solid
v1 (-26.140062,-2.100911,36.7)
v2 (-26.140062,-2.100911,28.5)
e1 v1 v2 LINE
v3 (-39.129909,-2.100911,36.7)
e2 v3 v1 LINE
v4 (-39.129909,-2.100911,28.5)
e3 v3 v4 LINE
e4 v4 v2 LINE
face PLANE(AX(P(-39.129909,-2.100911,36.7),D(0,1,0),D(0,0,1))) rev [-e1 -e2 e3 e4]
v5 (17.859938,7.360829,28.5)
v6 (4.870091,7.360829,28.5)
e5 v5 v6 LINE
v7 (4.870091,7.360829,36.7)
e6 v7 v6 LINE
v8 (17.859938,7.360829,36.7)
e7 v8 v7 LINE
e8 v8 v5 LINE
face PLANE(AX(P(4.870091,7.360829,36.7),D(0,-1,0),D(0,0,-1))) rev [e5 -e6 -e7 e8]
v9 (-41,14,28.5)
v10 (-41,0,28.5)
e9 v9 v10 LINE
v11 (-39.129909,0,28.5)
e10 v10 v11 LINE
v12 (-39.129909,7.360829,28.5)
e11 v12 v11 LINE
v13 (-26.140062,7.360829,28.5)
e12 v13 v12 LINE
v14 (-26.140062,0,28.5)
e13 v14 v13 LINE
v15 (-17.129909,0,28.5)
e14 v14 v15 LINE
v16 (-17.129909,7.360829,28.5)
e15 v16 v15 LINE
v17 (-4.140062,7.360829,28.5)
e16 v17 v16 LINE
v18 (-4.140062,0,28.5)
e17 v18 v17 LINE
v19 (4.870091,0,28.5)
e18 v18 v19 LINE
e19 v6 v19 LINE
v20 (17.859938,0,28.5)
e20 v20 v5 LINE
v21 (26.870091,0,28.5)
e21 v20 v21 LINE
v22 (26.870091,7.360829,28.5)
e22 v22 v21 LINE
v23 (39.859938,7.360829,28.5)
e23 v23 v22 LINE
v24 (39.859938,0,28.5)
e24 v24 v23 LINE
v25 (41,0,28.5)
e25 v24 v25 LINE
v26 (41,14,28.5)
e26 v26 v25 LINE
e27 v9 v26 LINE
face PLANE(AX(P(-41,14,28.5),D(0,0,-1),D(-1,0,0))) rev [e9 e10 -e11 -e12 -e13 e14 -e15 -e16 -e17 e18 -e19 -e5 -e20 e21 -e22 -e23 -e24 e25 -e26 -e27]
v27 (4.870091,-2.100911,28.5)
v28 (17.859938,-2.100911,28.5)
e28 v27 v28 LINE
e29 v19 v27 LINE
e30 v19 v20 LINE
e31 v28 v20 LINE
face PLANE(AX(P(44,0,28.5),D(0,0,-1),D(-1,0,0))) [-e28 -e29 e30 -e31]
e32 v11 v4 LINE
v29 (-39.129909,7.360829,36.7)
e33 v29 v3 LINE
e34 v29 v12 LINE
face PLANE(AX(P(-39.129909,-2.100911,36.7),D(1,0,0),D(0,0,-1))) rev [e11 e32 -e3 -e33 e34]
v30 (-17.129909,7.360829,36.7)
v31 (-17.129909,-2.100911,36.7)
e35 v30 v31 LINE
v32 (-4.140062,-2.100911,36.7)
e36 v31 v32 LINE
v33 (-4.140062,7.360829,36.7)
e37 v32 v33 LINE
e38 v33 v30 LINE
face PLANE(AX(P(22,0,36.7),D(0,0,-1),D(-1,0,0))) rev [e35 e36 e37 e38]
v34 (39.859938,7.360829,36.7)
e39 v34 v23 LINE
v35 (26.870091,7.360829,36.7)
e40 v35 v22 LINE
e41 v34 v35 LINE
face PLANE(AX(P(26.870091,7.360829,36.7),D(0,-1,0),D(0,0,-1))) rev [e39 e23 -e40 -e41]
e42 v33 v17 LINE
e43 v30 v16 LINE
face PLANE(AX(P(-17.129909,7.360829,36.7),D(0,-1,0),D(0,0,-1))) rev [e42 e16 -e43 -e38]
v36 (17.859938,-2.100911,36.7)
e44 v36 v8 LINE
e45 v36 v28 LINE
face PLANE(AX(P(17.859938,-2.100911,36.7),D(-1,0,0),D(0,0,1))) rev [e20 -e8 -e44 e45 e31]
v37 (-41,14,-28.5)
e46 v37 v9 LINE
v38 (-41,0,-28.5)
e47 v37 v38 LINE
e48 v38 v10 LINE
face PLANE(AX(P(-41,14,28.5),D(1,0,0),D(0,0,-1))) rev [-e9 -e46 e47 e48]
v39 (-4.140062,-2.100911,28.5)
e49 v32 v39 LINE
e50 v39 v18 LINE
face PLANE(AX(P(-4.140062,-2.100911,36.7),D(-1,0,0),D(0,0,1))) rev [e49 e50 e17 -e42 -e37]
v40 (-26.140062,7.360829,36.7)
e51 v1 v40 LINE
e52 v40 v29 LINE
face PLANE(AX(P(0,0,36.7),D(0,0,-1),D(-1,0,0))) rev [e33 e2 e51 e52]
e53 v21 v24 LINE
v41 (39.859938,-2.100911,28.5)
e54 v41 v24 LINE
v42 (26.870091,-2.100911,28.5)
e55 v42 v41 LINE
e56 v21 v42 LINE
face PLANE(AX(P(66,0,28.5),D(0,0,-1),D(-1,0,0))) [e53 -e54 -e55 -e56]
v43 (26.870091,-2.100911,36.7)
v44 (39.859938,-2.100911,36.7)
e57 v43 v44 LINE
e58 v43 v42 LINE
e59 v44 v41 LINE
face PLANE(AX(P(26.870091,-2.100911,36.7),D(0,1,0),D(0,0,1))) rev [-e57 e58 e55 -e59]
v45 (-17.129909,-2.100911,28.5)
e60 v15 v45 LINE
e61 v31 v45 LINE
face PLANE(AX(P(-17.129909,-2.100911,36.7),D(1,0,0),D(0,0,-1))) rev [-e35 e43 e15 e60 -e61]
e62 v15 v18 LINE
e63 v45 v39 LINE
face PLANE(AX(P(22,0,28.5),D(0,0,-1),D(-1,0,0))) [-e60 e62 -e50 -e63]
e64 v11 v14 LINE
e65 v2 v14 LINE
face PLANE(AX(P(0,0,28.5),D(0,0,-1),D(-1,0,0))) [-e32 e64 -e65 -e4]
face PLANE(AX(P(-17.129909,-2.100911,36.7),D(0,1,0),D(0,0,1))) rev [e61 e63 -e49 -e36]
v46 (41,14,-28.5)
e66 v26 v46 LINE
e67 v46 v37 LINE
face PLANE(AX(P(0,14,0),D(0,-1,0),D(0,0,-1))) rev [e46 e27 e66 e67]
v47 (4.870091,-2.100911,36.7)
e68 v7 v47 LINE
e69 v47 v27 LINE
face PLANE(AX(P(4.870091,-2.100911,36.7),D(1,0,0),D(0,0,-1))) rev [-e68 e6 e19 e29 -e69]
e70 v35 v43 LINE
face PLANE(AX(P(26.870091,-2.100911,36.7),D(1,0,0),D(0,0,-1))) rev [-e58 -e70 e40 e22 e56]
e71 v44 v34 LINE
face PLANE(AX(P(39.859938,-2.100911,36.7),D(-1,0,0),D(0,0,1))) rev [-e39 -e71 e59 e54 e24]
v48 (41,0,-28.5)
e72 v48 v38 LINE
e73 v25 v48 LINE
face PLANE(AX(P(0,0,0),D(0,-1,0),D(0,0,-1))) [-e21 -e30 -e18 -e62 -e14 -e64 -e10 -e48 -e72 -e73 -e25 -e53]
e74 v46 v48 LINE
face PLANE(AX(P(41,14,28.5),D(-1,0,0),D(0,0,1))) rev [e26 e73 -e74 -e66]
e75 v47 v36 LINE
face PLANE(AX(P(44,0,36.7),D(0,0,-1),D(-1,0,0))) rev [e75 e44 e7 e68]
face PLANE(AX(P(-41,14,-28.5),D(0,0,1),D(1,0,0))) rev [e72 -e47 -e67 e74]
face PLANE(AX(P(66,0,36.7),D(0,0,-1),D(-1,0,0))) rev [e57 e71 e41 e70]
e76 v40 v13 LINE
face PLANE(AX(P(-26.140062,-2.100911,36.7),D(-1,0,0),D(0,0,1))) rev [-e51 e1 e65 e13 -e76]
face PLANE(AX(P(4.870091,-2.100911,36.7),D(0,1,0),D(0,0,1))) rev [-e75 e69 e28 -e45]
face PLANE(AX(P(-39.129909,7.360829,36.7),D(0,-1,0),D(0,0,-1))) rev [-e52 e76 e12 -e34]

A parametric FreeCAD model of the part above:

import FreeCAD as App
import Part
import Sketcher

V = App.Vector


def add_polygon(sketch, points):
    """Adds a closed chain of lines whose ends are joined by coincident constraints."""
    first, n = sketch.GeometryCount, len(points)
    for a, b in zip(points, points[1:] + points[:1]):
        sketch.addGeometry(Part.LineSegment(App.Vector(*a, 0), App.Vector(*b, 0)), False)
    for i in range(n):
        sketch.addConstraint(Sketcher.Constraint("Coincident", first + i, 2, first + (i + 1) % n, 1))

doc = App.newDocument("Part")
body = doc.addObject("PartDesign::Body", "Body")

# Sketch on XZ plane
sketch1 = doc.addObject("Sketcher::SketchObject", "Sketch")
body.addObject(sketch1)
sketch1.AttachmentSupport = (doc.XZ_Plane, [""])
sketch1.MapMode = "FlatFace"
add_polygon(sketch1, [(-41, -28), (-41, 28), (41, 28), (41, -28)])  # lines 0-3
sketch1.addConstraint([
    Sketcher.Constraint("Vertical", 0),
    Sketcher.Constraint("Horizontal", 1),
    Sketcher.Constraint("Vertical", 2),
    Sketcher.Constraint("Horizontal", 3),
    Sketcher.Constraint("Symmetric", 0, 2, 2, 2, -1, 1),
    Sketcher.Constraint("DistanceX", 1, 1, 1, 2, 82.0),
    Sketcher.Constraint("DistanceY", 0, 1, 0, 2, 57.0),
])
pad1 = doc.addObject("PartDesign::Pad", "Pad")
body.addObject(pad1)
pad1.Profile = sketch1
pad1.Length = 14
pad1.Reversed = True

# Sketch on XY plane
sketch2 = doc.addObject("Sketcher::SketchObject", "Sketch001")
body.addObject(sketch2)
sketch2.AttachmentSupport = (doc.XY_Plane, [""])
sketch2.MapMode = "FlatFace"
sketch2.AttachmentOffset = App.Placement(V(0, 0, 28.5), App.Rotation())
add_polygon(sketch2, [(-39, 7), (-39, -2), (-26, -2), (-26, 7)])  # lines 0-3
sketch2.addConstraint([
    Sketcher.Constraint("Vertical", 0),
    Sketcher.Constraint("Horizontal", 1),
    Sketcher.Constraint("Vertical", 2),
    Sketcher.Constraint("Horizontal", 3),
    Sketcher.Constraint("DistanceY", 0, 2, 0, 1, 9.46174),
    Sketcher.Constraint("DistanceX", 1, 1, 1, 2, 12.989847),
    Sketcher.Constraint("DistanceX", 0, 2, -1, 1, 39.129909),
    Sketcher.Constraint("DistanceY", 0, 2, -1, 1, 2.100911),
])
pad2 = doc.addObject("PartDesign::Pad", "Pad001")
body.addObject(pad2)
pad2.Profile = sketch2
pad2.Length = 8.2
doc.recompute()

linearpattern = doc.addObject("PartDesign::LinearPattern", "LinearPattern")
body.addObject(linearpattern)
linearpattern.Originals = [pad2]
linearpattern.Direction = (doc.X_Axis, [""])
linearpattern.Mode = "offset"
linearpattern.Offset = 22
linearpattern.Occurrences = 4
body.Tip = linearpattern

doc.recompute()
